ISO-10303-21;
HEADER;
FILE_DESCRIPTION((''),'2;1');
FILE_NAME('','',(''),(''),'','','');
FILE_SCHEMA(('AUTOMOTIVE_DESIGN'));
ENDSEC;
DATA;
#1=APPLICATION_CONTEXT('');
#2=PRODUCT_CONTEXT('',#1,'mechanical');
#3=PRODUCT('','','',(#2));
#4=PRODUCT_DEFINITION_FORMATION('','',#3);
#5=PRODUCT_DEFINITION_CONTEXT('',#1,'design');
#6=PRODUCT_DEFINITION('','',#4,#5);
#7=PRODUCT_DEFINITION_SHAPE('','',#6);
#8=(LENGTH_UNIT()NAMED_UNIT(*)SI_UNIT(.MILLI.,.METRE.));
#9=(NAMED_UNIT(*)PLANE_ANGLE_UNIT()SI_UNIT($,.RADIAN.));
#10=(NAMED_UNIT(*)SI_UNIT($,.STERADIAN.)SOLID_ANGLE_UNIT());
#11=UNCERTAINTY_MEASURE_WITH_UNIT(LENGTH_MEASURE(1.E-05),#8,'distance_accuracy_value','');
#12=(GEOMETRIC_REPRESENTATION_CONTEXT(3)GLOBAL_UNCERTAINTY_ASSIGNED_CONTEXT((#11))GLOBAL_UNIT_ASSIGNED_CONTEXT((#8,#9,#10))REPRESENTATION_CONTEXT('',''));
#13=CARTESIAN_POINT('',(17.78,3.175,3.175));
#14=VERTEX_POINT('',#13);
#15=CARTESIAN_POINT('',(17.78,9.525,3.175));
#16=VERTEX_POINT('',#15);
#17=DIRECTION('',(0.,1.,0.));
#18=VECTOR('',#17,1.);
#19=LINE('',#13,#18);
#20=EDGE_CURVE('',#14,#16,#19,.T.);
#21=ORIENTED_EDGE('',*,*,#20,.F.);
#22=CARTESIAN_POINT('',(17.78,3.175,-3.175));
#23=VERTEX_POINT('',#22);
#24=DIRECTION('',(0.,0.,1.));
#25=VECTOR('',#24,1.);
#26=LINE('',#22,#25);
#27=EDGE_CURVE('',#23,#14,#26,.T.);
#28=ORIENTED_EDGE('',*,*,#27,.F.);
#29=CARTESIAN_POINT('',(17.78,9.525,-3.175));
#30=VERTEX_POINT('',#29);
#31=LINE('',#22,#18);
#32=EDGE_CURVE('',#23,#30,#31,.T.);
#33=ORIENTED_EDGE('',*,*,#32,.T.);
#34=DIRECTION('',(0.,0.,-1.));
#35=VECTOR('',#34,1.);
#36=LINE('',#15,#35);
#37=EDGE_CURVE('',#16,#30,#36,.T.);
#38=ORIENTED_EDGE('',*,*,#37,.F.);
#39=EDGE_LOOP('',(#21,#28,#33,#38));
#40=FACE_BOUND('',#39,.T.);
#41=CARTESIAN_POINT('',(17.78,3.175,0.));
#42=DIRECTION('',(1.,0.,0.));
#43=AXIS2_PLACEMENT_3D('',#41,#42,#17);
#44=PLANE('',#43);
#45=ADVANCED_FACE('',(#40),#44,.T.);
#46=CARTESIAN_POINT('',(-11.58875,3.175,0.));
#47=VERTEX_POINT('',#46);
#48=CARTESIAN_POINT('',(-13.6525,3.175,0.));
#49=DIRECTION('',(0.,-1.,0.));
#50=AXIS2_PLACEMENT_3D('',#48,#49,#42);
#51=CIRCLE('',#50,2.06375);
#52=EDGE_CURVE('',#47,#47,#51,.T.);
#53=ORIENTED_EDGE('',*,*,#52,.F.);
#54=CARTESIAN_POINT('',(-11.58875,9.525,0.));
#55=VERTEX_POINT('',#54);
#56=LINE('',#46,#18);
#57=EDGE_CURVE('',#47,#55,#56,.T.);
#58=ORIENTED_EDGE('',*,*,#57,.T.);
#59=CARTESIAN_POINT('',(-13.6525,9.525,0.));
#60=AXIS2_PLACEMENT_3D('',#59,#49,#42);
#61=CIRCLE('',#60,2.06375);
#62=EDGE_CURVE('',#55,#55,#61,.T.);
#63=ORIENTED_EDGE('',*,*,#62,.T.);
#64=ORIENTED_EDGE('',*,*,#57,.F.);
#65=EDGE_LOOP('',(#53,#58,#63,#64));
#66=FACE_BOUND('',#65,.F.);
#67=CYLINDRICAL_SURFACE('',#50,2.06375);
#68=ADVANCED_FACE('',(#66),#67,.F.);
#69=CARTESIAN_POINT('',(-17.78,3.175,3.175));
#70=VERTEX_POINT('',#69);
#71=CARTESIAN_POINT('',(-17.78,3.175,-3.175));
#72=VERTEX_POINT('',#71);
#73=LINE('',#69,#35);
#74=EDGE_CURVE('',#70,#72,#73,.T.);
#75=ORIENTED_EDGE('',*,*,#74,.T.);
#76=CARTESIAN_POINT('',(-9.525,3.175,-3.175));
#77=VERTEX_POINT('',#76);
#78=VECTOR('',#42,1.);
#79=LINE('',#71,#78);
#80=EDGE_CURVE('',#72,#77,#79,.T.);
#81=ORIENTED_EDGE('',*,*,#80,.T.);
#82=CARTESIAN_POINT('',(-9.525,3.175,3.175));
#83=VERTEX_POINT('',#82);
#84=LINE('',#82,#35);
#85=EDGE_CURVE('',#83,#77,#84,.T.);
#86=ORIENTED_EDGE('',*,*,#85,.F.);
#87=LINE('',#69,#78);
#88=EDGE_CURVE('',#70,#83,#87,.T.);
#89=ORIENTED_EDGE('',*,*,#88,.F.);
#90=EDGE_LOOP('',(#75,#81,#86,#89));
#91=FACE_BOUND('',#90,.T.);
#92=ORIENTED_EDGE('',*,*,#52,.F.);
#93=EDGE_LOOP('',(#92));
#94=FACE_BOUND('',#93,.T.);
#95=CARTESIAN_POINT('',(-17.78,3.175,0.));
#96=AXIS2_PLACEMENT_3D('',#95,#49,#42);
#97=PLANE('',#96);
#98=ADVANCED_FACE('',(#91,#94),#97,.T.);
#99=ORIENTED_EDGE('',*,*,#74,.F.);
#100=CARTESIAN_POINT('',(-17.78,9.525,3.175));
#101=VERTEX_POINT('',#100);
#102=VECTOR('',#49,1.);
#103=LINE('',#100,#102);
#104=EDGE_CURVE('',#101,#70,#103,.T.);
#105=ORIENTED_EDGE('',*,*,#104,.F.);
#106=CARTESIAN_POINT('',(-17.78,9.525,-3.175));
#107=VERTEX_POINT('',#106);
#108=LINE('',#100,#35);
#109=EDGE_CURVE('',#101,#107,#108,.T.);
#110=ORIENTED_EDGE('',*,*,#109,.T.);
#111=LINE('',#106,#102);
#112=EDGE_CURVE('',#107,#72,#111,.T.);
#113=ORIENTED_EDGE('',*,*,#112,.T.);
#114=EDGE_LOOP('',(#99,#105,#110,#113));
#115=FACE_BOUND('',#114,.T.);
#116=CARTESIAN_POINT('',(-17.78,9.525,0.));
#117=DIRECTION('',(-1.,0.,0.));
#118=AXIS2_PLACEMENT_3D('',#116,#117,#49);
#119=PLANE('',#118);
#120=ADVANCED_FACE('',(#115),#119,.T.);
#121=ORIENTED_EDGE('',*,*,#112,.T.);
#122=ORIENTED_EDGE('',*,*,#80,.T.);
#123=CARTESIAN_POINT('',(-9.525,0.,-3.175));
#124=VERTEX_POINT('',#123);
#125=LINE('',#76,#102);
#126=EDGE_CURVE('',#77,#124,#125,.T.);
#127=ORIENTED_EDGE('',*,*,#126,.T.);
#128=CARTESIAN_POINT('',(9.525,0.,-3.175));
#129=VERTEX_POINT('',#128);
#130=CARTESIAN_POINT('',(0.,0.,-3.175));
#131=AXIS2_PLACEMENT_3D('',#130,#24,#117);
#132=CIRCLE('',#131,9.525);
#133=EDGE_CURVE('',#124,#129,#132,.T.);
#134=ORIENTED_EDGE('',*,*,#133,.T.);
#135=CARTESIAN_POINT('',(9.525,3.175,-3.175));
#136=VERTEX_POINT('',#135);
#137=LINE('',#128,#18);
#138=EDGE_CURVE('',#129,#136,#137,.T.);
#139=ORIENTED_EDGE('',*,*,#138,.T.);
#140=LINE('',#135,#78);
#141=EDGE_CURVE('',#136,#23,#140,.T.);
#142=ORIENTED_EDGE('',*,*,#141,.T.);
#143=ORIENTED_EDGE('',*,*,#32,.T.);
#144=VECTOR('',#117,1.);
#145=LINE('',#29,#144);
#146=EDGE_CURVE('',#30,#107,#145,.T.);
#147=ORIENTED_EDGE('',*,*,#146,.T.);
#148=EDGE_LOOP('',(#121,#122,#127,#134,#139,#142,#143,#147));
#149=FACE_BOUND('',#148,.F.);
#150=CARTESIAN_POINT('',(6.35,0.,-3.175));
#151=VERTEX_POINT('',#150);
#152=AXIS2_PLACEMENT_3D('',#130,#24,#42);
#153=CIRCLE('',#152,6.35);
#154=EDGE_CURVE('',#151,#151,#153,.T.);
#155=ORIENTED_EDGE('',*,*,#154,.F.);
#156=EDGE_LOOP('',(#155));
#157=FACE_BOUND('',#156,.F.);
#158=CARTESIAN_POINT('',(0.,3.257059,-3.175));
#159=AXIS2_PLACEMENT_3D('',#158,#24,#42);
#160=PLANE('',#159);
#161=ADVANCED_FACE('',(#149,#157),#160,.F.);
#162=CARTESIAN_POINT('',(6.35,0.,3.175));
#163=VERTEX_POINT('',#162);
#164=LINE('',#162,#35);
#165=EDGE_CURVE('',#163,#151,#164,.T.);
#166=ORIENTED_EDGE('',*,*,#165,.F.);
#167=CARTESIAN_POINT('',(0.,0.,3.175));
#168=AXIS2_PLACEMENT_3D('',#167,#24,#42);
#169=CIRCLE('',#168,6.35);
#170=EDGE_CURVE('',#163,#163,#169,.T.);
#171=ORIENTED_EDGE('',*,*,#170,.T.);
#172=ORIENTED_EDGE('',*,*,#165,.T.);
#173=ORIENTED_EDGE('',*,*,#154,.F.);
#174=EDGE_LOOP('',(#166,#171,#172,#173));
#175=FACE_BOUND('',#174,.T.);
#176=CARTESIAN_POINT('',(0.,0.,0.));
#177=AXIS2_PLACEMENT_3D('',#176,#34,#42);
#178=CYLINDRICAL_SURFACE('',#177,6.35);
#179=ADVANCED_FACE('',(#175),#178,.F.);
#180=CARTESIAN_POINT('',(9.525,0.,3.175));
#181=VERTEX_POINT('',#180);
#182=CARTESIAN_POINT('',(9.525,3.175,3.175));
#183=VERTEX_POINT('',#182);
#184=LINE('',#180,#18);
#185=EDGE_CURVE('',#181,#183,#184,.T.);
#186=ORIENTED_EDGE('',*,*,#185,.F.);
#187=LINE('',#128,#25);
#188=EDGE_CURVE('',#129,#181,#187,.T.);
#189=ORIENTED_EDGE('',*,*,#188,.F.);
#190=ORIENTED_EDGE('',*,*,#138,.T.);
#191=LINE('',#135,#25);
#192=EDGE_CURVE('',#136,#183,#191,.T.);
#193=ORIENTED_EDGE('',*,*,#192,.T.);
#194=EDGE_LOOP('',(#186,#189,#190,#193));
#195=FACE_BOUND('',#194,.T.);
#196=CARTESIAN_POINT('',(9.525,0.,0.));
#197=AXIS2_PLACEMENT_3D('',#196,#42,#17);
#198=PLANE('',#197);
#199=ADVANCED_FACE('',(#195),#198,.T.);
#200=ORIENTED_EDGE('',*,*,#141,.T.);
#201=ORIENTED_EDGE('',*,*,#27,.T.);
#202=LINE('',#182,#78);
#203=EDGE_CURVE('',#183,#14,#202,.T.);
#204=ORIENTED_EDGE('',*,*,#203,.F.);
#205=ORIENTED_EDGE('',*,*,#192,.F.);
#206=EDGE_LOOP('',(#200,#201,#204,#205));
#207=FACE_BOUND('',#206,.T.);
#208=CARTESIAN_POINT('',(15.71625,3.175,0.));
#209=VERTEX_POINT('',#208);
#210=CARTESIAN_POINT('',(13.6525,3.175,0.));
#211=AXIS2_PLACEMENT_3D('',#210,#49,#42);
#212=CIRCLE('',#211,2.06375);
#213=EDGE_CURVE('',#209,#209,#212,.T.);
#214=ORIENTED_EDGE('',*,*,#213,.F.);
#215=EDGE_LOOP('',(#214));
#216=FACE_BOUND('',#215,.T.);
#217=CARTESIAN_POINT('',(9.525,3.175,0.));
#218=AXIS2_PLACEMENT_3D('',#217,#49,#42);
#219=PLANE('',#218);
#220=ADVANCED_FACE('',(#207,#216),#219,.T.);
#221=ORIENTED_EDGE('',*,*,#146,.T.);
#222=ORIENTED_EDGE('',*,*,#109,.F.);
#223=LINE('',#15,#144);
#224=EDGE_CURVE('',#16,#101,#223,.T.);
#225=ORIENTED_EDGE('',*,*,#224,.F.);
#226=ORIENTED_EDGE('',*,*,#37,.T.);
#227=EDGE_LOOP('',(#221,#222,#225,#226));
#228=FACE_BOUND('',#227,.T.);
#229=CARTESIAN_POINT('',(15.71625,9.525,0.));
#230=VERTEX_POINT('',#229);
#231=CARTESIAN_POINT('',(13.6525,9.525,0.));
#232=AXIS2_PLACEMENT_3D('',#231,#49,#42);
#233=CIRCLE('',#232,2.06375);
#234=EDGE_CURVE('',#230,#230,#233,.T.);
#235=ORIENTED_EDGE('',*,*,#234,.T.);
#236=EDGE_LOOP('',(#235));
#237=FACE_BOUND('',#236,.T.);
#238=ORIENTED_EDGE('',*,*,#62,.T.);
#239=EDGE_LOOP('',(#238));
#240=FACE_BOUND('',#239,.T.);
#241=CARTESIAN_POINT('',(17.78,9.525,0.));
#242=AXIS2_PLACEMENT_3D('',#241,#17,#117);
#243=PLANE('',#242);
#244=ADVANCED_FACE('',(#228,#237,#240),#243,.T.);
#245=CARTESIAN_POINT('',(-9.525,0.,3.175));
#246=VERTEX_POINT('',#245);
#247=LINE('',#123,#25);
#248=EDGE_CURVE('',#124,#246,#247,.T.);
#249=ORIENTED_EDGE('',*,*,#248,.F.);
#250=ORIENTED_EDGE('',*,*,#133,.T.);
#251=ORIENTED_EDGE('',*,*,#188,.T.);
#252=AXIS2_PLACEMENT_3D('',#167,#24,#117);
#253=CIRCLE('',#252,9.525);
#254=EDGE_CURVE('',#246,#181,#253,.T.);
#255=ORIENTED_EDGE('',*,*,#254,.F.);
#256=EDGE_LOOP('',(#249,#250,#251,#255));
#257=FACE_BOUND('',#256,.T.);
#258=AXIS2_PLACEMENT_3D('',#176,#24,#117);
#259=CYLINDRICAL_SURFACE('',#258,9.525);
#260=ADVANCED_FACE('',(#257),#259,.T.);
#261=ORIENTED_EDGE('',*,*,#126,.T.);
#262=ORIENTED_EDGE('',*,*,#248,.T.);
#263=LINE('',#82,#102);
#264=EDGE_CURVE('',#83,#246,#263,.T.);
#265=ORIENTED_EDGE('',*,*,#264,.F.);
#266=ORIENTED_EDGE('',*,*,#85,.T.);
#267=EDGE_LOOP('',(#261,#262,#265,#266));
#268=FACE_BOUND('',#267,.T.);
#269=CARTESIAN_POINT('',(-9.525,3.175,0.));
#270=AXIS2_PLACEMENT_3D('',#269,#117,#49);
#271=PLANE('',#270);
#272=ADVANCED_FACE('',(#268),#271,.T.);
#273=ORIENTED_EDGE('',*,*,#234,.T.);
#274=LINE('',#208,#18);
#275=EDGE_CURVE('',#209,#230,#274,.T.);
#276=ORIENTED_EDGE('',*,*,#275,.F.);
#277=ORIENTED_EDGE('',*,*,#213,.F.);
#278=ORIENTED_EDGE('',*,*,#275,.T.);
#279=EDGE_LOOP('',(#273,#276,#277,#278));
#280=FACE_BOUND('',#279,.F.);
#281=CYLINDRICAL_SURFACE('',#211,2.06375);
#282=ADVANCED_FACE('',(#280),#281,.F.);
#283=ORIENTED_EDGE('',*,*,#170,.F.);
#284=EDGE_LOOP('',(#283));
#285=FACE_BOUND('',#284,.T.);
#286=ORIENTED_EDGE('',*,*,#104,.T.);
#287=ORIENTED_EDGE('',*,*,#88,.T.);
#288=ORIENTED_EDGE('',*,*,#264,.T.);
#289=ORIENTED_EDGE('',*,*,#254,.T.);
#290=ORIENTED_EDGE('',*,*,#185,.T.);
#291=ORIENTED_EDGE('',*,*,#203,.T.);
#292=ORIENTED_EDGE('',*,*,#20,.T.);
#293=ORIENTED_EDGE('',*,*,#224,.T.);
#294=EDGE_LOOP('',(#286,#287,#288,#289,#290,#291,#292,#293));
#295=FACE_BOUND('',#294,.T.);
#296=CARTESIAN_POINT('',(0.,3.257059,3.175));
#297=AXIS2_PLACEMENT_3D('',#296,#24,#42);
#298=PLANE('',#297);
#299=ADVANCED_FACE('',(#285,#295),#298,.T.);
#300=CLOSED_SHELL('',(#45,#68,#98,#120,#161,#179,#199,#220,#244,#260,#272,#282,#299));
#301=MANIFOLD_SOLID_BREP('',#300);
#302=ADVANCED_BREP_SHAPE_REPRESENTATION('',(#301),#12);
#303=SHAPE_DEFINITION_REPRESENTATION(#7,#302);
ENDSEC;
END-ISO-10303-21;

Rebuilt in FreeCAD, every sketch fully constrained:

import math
import FreeCAD as App
import Part
import Sketcher
from FreeCAD import Vector
Q = App.Units.Quantity

doc = App.newDocument("Part")
body = doc.addObject("PartDesign::Body", "Body")

# Sketch on XY plane
sketch1 = body.newObject("Sketcher::SketchObject", "Sketch")
sketch1.AttachmentSupport = (doc.getObject("XY_Plane"), [""])
sketch1.MapMode = "FlatFace"
sketch1.addGeometry([
    Part.LineSegment(Vector(-9.5, 3.2, 0), Vector(-9.5, 0, 0)),  # 0
    Part.ArcOfCircle(Part.Circle(Vector(0, 0, 0), Vector(0, 0, 1), 9.5), math.radians(180), math.radians(360)),  # 1
    Part.LineSegment(Vector(9.5, 0, 0), Vector(9.5, 3.2, 0)),  # 2
    Part.LineSegment(Vector(9.5, 3.2, 0), Vector(17.8, 3.2, 0)),  # 3
    Part.LineSegment(Vector(17.8, 3.2, 0), Vector(17.8, 9.5, 0)),  # 4
    Part.LineSegment(Vector(17.8, 9.5, 0), Vector(-17.8, 9.5, 0)),  # 5
    Part.LineSegment(Vector(-17.8, 9.5, 0), Vector(-17.8, 3.2, 0)),  # 6
    Part.LineSegment(Vector(-17.8, 3.2, 0), Vector(-9.5, 3.2, 0)),  # 7
    Part.Circle(Vector(0, 0, 0), Vector(0, 0, 1), 6.3),  # 8
], False)
sketch1.addConstraint([
    Sketcher.Constraint("Tangent", 0, 2, 1, 1),
    Sketcher.Constraint("Tangent", 1, 2, 2, 1),
    Sketcher.Constraint("Coincident", 2, 2, 3, 1),
    Sketcher.Constraint("Coincident", 3, 2, 4, 1),
    Sketcher.Constraint("Coincident", 4, 2, 5, 1),
    Sketcher.Constraint("Coincident", 5, 2, 6, 1),
    Sketcher.Constraint("Coincident", 6, 2, 7, 1),
    Sketcher.Constraint("Coincident", 7, 2, 0, 1),
    Sketcher.Constraint("Vertical", 0),
    Sketcher.Constraint("Vertical", 2),
    Sketcher.Constraint("Horizontal", 3),
    Sketcher.Constraint("Vertical", 4),
    Sketcher.Constraint("Horizontal", 5),
    Sketcher.Constraint("Vertical", 6),
    Sketcher.Constraint("Horizontal", 7),
    Sketcher.Constraint("Coincident", 1, 3, -1, 1),
    Sketcher.Constraint("Coincident", 8, 3, -1, 1),
    Sketcher.Constraint("Symmetric", 3, 2, 6, 2, -2),
    Sketcher.Constraint("Diameter", 8, Q("0.5 in")),
    Sketcher.Constraint("DistanceX", 5, 2, 5, 1, Q("1.4 in")),
    Sketcher.Constraint("Radius", 1, Q("0.375 in")),
    Sketcher.Constraint("DistanceY", 4, 1, 4, 2, Q("0.25 in")),
    Sketcher.Constraint("DistanceY", 0, 2, 0, 1, Q("0.125 in")),
])
pad1 = body.newObject("PartDesign::Pad", "Pad")
pad1.Profile = sketch1
pad1.Length = Q("0.25 in")
pad1.Midplane = True

# Sketch on XZ plane
sketch2 = body.newObject("Sketcher::SketchObject", "Sketch001")
sketch2.AttachmentSupport = (doc.getObject("XZ_Plane"), [""])
sketch2.MapMode = "FlatFace"
sketch2.AttachmentOffset = App.Placement(Vector(0, 0, -0.125 * 25.4), App.Rotation())
sketch2.addGeometry(Part.Circle(Vector(-13.7, 0, 0), Vector(0, 0, 1), 2.1), False)
sketch2.addConstraint([
    Sketcher.Constraint("PointOnObject", 0, 3, -1),
    Sketcher.Constraint("Diameter", 0, Q("0.1625 in")),
    Sketcher.Constraint("DistanceX", 0, 3, -1, 1, Q("0.5375 in")),
])
pocket1 = body.newObject("PartDesign::Pocket", "Pocket")
pocket1.Profile = sketch2
pocket1.Type = "ThroughAll"

# Sketch on XZ plane
sketch3 = body.newObject("Sketcher::SketchObject", "Sketch002")
sketch3.AttachmentSupport = (doc.getObject("XZ_Plane"), [""])
sketch3.MapMode = "FlatFace"
sketch3.AttachmentOffset = App.Placement(Vector(0, 0, -0.125 * 25.4), App.Rotation())
sketch3.addGeometry(Part.Circle(Vector(13.7, 0, 0), Vector(0, 0, 1), 2.1), False)
sketch3.addConstraint([
    Sketcher.Constraint("PointOnObject", 0, 3, -1),
    Sketcher.Constraint("Diameter", 0, Q("0.1625 in")),
    Sketcher.Constraint("DistanceX", -1, 1, 0, 3, Q("0.5375 in")),
])
pocket2 = body.newObject("PartDesign::Pocket", "Pocket001")
pocket2.Profile = sketch3
pocket2.Type = "ThroughAll"

doc.recompute()
